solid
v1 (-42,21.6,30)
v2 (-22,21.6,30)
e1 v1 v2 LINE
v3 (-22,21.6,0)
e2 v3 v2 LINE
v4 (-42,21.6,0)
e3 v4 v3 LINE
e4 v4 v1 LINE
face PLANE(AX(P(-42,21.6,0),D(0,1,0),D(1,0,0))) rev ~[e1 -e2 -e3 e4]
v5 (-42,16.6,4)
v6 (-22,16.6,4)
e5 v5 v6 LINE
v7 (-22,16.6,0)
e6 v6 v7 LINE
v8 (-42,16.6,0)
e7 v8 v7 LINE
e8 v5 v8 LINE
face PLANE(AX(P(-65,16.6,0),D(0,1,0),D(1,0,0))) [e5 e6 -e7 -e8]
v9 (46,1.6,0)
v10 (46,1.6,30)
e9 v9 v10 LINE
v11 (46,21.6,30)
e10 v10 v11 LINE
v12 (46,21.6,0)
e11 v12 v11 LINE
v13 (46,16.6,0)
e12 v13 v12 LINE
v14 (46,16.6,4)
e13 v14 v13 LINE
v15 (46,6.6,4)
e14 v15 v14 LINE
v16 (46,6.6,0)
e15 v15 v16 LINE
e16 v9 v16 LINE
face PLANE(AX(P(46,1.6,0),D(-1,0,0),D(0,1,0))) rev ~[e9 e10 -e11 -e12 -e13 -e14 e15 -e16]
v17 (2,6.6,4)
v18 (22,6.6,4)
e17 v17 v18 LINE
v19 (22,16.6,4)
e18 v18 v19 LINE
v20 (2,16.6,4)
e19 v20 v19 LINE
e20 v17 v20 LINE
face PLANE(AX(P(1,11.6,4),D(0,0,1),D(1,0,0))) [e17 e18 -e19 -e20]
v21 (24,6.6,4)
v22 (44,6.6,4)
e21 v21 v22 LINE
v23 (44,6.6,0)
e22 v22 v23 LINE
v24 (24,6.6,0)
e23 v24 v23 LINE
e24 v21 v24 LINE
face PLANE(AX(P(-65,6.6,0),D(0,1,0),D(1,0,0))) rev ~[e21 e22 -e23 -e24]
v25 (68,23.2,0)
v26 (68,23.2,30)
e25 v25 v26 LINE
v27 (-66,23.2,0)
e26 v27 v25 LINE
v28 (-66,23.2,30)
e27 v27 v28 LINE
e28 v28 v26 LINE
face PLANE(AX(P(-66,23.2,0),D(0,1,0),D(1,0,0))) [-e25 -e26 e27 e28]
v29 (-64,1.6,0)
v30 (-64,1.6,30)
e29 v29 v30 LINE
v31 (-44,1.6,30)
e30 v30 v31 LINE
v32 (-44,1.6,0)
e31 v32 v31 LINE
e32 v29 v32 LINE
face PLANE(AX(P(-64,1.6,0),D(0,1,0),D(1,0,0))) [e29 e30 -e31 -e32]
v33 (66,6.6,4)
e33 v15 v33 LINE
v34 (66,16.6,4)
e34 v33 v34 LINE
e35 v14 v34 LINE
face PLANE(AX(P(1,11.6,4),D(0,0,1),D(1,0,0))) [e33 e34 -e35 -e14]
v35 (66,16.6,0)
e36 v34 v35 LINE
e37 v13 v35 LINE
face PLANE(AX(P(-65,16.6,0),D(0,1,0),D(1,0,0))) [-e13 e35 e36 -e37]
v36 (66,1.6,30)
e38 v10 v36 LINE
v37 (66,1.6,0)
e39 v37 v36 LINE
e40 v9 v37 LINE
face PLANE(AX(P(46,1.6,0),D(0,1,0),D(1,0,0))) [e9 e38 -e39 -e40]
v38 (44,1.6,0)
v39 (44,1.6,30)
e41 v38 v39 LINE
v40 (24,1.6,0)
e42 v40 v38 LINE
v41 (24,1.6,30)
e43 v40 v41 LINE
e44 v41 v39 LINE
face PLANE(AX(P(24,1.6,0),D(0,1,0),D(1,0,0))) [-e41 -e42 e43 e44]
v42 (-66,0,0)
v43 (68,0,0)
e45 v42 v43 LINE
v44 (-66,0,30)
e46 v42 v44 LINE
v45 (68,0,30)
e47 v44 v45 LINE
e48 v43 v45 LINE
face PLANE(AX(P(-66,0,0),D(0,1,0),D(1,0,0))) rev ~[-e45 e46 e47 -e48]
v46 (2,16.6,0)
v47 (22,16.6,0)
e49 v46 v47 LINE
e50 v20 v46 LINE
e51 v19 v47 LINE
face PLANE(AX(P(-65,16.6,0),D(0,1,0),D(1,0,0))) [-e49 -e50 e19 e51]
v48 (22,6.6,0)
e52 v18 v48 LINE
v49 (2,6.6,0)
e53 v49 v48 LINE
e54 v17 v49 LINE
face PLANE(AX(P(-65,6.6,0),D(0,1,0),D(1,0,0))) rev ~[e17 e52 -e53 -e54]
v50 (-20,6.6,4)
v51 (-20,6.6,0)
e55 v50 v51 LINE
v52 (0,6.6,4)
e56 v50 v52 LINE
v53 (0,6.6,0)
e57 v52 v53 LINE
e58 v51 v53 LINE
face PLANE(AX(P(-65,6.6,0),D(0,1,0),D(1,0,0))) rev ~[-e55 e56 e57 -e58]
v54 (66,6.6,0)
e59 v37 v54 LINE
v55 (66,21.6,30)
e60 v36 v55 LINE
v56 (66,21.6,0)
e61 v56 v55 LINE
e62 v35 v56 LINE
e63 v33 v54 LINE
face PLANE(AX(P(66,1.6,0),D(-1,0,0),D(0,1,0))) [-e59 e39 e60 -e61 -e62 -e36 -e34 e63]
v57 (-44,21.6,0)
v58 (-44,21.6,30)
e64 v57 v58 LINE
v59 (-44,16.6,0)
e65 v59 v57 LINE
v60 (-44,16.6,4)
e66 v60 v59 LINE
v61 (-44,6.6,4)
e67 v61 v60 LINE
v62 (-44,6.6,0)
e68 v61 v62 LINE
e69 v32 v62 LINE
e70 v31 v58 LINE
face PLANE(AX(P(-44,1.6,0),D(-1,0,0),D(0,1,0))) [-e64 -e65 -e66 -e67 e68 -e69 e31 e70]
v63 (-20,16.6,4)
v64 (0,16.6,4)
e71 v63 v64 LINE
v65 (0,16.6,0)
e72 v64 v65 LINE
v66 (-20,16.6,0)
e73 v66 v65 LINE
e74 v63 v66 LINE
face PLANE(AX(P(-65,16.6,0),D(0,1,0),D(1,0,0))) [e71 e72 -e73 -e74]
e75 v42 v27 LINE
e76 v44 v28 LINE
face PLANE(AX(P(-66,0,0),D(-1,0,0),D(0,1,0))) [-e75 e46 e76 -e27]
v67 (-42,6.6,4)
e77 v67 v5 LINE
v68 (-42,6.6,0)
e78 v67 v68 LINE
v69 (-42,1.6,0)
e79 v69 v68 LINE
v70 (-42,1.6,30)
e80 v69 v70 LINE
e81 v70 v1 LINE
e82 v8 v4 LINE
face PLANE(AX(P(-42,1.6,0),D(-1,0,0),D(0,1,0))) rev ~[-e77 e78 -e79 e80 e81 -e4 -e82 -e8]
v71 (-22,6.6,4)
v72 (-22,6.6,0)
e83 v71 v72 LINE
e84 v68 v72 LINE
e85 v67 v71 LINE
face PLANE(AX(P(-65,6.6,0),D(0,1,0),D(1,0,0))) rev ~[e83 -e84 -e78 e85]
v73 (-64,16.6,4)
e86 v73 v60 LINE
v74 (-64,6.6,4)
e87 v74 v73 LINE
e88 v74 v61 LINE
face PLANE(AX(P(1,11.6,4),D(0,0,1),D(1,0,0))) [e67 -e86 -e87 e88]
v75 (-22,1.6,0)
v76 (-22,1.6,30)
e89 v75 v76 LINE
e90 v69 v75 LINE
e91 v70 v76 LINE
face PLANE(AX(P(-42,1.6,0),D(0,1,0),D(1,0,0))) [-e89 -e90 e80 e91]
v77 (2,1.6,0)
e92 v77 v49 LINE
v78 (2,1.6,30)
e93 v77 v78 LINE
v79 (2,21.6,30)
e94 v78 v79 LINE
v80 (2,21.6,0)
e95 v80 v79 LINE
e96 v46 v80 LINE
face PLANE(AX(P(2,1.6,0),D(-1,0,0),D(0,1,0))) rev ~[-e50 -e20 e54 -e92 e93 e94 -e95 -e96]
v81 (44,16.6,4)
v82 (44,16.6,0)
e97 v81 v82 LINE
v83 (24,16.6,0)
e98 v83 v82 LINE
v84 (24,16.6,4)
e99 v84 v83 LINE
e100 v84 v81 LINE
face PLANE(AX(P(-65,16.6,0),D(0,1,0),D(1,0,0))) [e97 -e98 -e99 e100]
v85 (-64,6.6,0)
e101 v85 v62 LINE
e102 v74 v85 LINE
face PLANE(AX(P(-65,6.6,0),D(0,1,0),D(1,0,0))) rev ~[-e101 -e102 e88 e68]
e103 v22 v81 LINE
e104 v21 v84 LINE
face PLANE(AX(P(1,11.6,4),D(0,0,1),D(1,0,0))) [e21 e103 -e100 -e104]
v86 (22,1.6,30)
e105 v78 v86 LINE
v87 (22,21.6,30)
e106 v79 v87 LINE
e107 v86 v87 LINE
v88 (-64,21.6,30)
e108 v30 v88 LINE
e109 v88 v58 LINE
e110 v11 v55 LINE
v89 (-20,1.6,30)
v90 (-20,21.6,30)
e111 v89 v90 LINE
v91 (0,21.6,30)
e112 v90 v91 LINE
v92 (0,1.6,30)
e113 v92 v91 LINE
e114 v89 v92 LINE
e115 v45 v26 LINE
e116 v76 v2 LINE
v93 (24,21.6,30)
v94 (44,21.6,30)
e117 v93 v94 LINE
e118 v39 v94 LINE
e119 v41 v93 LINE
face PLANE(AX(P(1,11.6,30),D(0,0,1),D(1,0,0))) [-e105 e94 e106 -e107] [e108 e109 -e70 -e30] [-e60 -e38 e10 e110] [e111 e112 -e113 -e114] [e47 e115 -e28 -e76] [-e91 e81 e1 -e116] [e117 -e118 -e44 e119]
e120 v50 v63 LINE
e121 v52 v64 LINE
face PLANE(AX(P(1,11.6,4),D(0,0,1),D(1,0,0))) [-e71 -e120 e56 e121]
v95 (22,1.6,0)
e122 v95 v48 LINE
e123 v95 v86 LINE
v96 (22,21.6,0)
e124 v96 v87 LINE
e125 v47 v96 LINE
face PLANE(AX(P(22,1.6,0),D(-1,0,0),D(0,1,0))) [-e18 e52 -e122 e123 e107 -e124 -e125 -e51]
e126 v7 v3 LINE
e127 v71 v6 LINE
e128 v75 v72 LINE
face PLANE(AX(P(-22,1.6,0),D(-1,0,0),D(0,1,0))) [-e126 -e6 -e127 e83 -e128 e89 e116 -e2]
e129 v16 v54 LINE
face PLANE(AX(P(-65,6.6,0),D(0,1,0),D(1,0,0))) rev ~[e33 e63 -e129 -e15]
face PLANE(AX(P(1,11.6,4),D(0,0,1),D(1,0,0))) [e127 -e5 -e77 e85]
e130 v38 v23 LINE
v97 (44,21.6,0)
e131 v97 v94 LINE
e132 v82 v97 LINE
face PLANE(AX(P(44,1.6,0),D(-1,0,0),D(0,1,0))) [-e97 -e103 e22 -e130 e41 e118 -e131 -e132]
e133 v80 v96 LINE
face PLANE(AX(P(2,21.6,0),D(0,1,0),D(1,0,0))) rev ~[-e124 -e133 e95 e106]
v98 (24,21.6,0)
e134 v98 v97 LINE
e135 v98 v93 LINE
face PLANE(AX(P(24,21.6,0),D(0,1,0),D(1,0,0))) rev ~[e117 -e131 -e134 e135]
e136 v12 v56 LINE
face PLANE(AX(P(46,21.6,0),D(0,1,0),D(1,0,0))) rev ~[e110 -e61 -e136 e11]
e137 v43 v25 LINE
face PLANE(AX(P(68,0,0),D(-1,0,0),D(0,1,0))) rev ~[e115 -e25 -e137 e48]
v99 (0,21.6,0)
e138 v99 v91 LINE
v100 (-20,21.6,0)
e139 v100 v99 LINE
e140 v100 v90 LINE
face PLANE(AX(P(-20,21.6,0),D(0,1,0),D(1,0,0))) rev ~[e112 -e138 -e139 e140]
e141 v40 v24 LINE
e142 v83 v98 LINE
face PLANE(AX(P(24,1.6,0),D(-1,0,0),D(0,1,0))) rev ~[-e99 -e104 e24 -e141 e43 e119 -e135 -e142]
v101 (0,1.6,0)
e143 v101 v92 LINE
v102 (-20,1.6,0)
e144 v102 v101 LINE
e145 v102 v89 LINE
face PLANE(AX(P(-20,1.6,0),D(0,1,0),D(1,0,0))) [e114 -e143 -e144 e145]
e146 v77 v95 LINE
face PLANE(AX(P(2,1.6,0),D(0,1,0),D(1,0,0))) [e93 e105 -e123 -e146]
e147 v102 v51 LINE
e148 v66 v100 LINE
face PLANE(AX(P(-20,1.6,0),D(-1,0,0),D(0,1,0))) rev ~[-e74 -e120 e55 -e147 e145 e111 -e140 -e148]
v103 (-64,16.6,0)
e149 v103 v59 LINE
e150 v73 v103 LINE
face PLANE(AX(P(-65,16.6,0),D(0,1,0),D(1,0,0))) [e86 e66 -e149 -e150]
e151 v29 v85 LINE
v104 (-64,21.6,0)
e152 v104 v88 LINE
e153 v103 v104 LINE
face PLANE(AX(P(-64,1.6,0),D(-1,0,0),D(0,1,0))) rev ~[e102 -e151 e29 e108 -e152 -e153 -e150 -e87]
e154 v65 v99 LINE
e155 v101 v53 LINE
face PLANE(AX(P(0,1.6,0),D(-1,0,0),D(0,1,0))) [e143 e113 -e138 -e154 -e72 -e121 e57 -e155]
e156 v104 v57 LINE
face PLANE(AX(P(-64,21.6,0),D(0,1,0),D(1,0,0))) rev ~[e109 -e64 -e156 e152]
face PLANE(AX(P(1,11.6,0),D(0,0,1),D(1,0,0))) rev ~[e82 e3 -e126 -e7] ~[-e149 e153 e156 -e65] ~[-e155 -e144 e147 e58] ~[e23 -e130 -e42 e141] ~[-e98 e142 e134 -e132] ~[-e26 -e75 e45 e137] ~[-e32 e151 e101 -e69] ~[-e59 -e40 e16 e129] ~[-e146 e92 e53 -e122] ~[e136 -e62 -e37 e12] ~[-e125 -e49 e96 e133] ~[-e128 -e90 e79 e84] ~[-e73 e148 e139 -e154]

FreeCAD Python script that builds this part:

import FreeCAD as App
import Part
import Sketcher
Q = App.Units.Quantity

doc = App.newDocument("Part")
body = doc.addObject("PartDesign::Body", "Body")

# Sketch on XY plane
sketch1 = doc.addObject("Sketcher::SketchObject", "Sketch")
body.addObject(sketch1)
sketch1.AttachmentSupport = (doc.XY_Plane, [""])
sketch1.MapMode = "FlatFace"
sketch1.addGeometry([
    Part.LineSegment(App.Vector(-66, 23, 0), App.Vector(-66, 0, 0)),  # 0
    Part.LineSegment(App.Vector(-66, 0, 0), App.Vector(68, 0, 0)),  # 1
    Part.LineSegment(App.Vector(68, 0, 0), App.Vector(68, 23, 0)),  # 2
    Part.LineSegment(App.Vector(68, 23, 0), App.Vector(-66, 23, 0)),  # 3
    Part.LineSegment(App.Vector(-44, 2, 0), App.Vector(-64, 2, 0)),  # 4
    Part.LineSegment(App.Vector(-64, 2, 0), App.Vector(-64, 22, 0)),  # 5
    Part.LineSegment(App.Vector(-64, 22, 0), App.Vector(-44, 22, 0)),  # 6
    Part.LineSegment(App.Vector(-44, 22, 0), App.Vector(-44, 2, 0)),  # 7
    Part.LineSegment(App.Vector(-22, 2, 0), App.Vector(-42, 2, 0)),  # 8
    Part.LineSegment(App.Vector(-42, 2, 0), App.Vector(-42, 22, 0)),  # 9
    Part.LineSegment(App.Vector(-42, 22, 0), App.Vector(-22, 22, 0)),  # 10
    Part.LineSegment(App.Vector(-22, 22, 0), App.Vector(-22, 2, 0)),  # 11
    Part.LineSegment(App.Vector(0, 2, 0), App.Vector(-20, 2, 0)),  # 12
    Part.LineSegment(App.Vector(-20, 2, 0), App.Vector(-20, 22, 0)),  # 13
    Part.LineSegment(App.Vector(-20, 22, 0), App.Vector(0, 22, 0)),  # 14
    Part.LineSegment(App.Vector(0, 22, 0), App.Vector(0, 2, 0)),  # 15
    Part.LineSegment(App.Vector(22, 2, 0), App.Vector(2, 2, 0)),  # 16
    Part.LineSegment(App.Vector(2, 2, 0), App.Vector(2, 22, 0)),  # 17
    Part.LineSegment(App.Vector(2, 22, 0), App.Vector(22, 22, 0)),  # 18
    Part.LineSegment(App.Vector(22, 22, 0), App.Vector(22, 2, 0)),  # 19
    Part.LineSegment(App.Vector(44, 2, 0), App.Vector(24, 2, 0)),  # 20
    Part.LineSegment(App.Vector(24, 2, 0), App.Vector(24, 22, 0)),  # 21
    Part.LineSegment(App.Vector(24, 22, 0), App.Vector(44, 22, 0)),  # 22
    Part.LineSegment(App.Vector(44, 22, 0), App.Vector(44, 2, 0)),  # 23
    Part.LineSegment(App.Vector(66, 2, 0), App.Vector(46, 2, 0)),  # 24
    Part.LineSegment(App.Vector(46, 2, 0), App.Vector(46, 22, 0)),  # 25
    Part.LineSegment(App.Vector(46, 22, 0), App.Vector(66, 22, 0)),  # 26
    Part.LineSegment(App.Vector(66, 22, 0), App.Vector(66, 2, 0)),  # 27
], False)
sketch1.addConstraint([
    Sketcher.Constraint("Coincident", 0, 2, 1, 1),
    Sketcher.Constraint("Coincident", 1, 2, 2, 1),
    Sketcher.Constraint("Coincident", 2, 2, 3, 1),
    Sketcher.Constraint("Coincident", 3, 2, 0, 1),
    Sketcher.Constraint("Coincident", 4, 2, 5, 1),
    Sketcher.Constraint("Coincident", 5, 2, 6, 1),
    Sketcher.Constraint("Coincident", 6, 2, 7, 1),
    Sketcher.Constraint("Coincident", 7, 2, 4, 1),
    Sketcher.Constraint("Coincident", 8, 2, 9, 1),
    Sketcher.Constraint("Coincident", 9, 2, 10, 1),
    Sketcher.Constraint("Coincident", 10, 2, 11, 1),
    Sketcher.Constraint("Coincident", 11, 2, 8, 1),
    Sketcher.Constraint("Coincident", 12, 2, 13, 1),
    Sketcher.Constraint("Coincident", 13, 2, 14, 1),
    Sketcher.Constraint("Coincident", 14, 2, 15, 1),
    Sketcher.Constraint("Coincident", 15, 2, 12, 1),
    Sketcher.Constraint("Coincident", 16, 2, 17, 1),
    Sketcher.Constraint("Coincident", 17, 2, 18, 1),
    Sketcher.Constraint("Coincident", 18, 2, 19, 1),
    Sketcher.Constraint("Coincident", 19, 2, 16, 1),
    Sketcher.Constraint("Coincident", 20, 2, 21, 1),
    Sketcher.Constraint("Coincident", 21, 2, 22, 1),
    Sketcher.Constraint("Coincident", 22, 2, 23, 1),
    Sketcher.Constraint("Coincident", 23, 2, 20, 1),
    Sketcher.Constraint("Coincident", 24, 2, 25, 1),
    Sketcher.Constraint("Coincident", 25, 2, 26, 1),
    Sketcher.Constraint("Coincident", 26, 2, 27, 1),
    Sketcher.Constraint("Coincident", 27, 2, 24, 1),
    Sketcher.Constraint("Vertical", 0),
    Sketcher.Constraint("Horizontal", 1),
    Sketcher.Constraint("Vertical", 2),
    Sketcher.Constraint("Horizontal", 3),
    Sketcher.Constraint("Horizontal", 4),
    Sketcher.Constraint("Vertical", 5),
    Sketcher.Constraint("Horizontal", 6),
    Sketcher.Constraint("Vertical", 7),
    Sketcher.Constraint("Horizontal", 8),
    Sketcher.Constraint("Vertical", 9),
    Sketcher.Constraint("Horizontal", 10),
    Sketcher.Constraint("Vertical", 11),
    Sketcher.Constraint("Horizontal", 12),
    Sketcher.Constraint("Vertical", 13),
    Sketcher.Constraint("Horizontal", 14),
    Sketcher.Constraint("Vertical", 15),
    Sketcher.Constraint("Horizontal", 16),
    Sketcher.Constraint("Vertical", 17),
    Sketcher.Constraint("Horizontal", 18),
    Sketcher.Constraint("Vertical", 19),
    Sketcher.Constraint("Horizontal", 20),
    Sketcher.Constraint("Vertical", 21),
    Sketcher.Constraint("Horizontal", 22),
    Sketcher.Constraint("Vertical", 23),
    Sketcher.Constraint("Horizontal", 24),
    Sketcher.Constraint("Vertical", 25),
    Sketcher.Constraint("Horizontal", 26),
    Sketcher.Constraint("Vertical", 27),
    Sketcher.Constraint("Symmetric", 10, 2, 18, 2, -2),
    Sketcher.Constraint("Symmetric", 6, 2, 22, 2, -2),
    Sketcher.Constraint("PointOnObject", 0, 2, -1),
    Sketcher.Constraint("PointOnObject", 14, 2, -2),
    Sketcher.Constraint("Horizontal", 7, 2, 8, 2),
    Sketcher.Constraint("Horizontal", 6, 2, 9, 2),
    Sketcher.Constraint("Horizontal", 11, 2, 12, 2),
    Sketcher.Constraint("Horizontal", 10, 2, 13, 2),
    Sketcher.Constraint("Horizontal", 15, 2, 16, 2),
    Sketcher.Constraint("Horizontal", 19, 2, 20, 2),
    Sketcher.Constraint("Horizontal", 23, 2, 24, 2),
    Sketcher.Constraint("Horizontal", 22, 2, 25, 2),
    Sketcher.Constraint("Equal", 6, 8),
    Sketcher.Constraint("Equal", 10, 12),
    Sketcher.Constraint("Equal", 14, 16),
    Sketcher.Constraint("Equal", 18, 20),
    Sketcher.Constraint("Equal", 22, 24),
    Sketcher.Constraint("Equal", 26, 5),
    Sketcher.Constraint("DistanceX", 1, 1, 1, 2, Q("134 mm")),
    Sketcher.Constraint("DistanceX", 4, 2, 4, 1, Q("20 mm")),
    Sketcher.Constraint("DistanceY", 0, 2, 0, 1, Q("23.2 mm")),
    Sketcher.Constraint("DistanceX", 0, 2, -1, 1, Q("66 mm")),
    Sketcher.Constraint("DistanceX", 4, 2, -1, 1, Q("64 mm")),
    Sketcher.Constraint("DistanceX", 8, 2, -1, 1, Q("42 mm")),
    Sketcher.Constraint("DistanceX", -1, 1, 24, 2, Q("46 mm")),
    Sketcher.Constraint("DistanceY", -1, 1, 4, 2, Q("1.6 mm")),
])
pad1 = doc.addObject("PartDesign::Pad", "Pad")
body.addObject(pad1)
pad1.Profile = sketch1
pad1.Length = 30

# Sketch on XY plane
sketch2 = doc.addObject("Sketcher::SketchObject", "Sketch001")
body.addObject(sketch2)
sketch2.AttachmentSupport = (doc.XY_Plane, [""])
sketch2.MapMode = "FlatFace"
sketch2.addGeometry([
    Part.LineSegment(App.Vector(-65, 17, 0), App.Vector(-65, 7, 0)),
    Part.LineSegment(App.Vector(-65, 7, 0), App.Vector(67, 7, 0)),
    Part.LineSegment(App.Vector(67, 7, 0), App.Vector(67, 17, 0)),
    Part.LineSegment(App.Vector(67, 17, 0), App.Vector(-65, 17, 0)),
], False)
sketch2.addConstraint([
    Sketcher.Constraint("Coincident", 0, 2, 1, 1),
    Sketcher.Constraint("Coincident", 1, 2, 2, 1),
    Sketcher.Constraint("Coincident", 2, 2, 3, 1),
    Sketcher.Constraint("Coincident", 3, 2, 0, 1),
    Sketcher.Constraint("Vertical", 0),
    Sketcher.Constraint("Horizontal", 1),
    Sketcher.Constraint("Vertical", 2),
    Sketcher.Constraint("Horizontal", 3),
    Sketcher.Constraint("DistanceX", 1, 1, 1, 2, Q("132 mm")),
    Sketcher.Constraint("DistanceY", 0, 2, 0, 1, Q("10 mm")),
    Sketcher.Constraint("DistanceX", 0, 2, -1, 1, Q("65 mm")),
    Sketcher.Constraint("DistanceY", -1, 1, 0, 2, Q("6.6 mm")),
])
pad2 = doc.addObject("PartDesign::Pad", "Pad001")
body.addObject(pad2)
pad2.Profile = sketch2
pad2.Length = 4

doc.recompute()
